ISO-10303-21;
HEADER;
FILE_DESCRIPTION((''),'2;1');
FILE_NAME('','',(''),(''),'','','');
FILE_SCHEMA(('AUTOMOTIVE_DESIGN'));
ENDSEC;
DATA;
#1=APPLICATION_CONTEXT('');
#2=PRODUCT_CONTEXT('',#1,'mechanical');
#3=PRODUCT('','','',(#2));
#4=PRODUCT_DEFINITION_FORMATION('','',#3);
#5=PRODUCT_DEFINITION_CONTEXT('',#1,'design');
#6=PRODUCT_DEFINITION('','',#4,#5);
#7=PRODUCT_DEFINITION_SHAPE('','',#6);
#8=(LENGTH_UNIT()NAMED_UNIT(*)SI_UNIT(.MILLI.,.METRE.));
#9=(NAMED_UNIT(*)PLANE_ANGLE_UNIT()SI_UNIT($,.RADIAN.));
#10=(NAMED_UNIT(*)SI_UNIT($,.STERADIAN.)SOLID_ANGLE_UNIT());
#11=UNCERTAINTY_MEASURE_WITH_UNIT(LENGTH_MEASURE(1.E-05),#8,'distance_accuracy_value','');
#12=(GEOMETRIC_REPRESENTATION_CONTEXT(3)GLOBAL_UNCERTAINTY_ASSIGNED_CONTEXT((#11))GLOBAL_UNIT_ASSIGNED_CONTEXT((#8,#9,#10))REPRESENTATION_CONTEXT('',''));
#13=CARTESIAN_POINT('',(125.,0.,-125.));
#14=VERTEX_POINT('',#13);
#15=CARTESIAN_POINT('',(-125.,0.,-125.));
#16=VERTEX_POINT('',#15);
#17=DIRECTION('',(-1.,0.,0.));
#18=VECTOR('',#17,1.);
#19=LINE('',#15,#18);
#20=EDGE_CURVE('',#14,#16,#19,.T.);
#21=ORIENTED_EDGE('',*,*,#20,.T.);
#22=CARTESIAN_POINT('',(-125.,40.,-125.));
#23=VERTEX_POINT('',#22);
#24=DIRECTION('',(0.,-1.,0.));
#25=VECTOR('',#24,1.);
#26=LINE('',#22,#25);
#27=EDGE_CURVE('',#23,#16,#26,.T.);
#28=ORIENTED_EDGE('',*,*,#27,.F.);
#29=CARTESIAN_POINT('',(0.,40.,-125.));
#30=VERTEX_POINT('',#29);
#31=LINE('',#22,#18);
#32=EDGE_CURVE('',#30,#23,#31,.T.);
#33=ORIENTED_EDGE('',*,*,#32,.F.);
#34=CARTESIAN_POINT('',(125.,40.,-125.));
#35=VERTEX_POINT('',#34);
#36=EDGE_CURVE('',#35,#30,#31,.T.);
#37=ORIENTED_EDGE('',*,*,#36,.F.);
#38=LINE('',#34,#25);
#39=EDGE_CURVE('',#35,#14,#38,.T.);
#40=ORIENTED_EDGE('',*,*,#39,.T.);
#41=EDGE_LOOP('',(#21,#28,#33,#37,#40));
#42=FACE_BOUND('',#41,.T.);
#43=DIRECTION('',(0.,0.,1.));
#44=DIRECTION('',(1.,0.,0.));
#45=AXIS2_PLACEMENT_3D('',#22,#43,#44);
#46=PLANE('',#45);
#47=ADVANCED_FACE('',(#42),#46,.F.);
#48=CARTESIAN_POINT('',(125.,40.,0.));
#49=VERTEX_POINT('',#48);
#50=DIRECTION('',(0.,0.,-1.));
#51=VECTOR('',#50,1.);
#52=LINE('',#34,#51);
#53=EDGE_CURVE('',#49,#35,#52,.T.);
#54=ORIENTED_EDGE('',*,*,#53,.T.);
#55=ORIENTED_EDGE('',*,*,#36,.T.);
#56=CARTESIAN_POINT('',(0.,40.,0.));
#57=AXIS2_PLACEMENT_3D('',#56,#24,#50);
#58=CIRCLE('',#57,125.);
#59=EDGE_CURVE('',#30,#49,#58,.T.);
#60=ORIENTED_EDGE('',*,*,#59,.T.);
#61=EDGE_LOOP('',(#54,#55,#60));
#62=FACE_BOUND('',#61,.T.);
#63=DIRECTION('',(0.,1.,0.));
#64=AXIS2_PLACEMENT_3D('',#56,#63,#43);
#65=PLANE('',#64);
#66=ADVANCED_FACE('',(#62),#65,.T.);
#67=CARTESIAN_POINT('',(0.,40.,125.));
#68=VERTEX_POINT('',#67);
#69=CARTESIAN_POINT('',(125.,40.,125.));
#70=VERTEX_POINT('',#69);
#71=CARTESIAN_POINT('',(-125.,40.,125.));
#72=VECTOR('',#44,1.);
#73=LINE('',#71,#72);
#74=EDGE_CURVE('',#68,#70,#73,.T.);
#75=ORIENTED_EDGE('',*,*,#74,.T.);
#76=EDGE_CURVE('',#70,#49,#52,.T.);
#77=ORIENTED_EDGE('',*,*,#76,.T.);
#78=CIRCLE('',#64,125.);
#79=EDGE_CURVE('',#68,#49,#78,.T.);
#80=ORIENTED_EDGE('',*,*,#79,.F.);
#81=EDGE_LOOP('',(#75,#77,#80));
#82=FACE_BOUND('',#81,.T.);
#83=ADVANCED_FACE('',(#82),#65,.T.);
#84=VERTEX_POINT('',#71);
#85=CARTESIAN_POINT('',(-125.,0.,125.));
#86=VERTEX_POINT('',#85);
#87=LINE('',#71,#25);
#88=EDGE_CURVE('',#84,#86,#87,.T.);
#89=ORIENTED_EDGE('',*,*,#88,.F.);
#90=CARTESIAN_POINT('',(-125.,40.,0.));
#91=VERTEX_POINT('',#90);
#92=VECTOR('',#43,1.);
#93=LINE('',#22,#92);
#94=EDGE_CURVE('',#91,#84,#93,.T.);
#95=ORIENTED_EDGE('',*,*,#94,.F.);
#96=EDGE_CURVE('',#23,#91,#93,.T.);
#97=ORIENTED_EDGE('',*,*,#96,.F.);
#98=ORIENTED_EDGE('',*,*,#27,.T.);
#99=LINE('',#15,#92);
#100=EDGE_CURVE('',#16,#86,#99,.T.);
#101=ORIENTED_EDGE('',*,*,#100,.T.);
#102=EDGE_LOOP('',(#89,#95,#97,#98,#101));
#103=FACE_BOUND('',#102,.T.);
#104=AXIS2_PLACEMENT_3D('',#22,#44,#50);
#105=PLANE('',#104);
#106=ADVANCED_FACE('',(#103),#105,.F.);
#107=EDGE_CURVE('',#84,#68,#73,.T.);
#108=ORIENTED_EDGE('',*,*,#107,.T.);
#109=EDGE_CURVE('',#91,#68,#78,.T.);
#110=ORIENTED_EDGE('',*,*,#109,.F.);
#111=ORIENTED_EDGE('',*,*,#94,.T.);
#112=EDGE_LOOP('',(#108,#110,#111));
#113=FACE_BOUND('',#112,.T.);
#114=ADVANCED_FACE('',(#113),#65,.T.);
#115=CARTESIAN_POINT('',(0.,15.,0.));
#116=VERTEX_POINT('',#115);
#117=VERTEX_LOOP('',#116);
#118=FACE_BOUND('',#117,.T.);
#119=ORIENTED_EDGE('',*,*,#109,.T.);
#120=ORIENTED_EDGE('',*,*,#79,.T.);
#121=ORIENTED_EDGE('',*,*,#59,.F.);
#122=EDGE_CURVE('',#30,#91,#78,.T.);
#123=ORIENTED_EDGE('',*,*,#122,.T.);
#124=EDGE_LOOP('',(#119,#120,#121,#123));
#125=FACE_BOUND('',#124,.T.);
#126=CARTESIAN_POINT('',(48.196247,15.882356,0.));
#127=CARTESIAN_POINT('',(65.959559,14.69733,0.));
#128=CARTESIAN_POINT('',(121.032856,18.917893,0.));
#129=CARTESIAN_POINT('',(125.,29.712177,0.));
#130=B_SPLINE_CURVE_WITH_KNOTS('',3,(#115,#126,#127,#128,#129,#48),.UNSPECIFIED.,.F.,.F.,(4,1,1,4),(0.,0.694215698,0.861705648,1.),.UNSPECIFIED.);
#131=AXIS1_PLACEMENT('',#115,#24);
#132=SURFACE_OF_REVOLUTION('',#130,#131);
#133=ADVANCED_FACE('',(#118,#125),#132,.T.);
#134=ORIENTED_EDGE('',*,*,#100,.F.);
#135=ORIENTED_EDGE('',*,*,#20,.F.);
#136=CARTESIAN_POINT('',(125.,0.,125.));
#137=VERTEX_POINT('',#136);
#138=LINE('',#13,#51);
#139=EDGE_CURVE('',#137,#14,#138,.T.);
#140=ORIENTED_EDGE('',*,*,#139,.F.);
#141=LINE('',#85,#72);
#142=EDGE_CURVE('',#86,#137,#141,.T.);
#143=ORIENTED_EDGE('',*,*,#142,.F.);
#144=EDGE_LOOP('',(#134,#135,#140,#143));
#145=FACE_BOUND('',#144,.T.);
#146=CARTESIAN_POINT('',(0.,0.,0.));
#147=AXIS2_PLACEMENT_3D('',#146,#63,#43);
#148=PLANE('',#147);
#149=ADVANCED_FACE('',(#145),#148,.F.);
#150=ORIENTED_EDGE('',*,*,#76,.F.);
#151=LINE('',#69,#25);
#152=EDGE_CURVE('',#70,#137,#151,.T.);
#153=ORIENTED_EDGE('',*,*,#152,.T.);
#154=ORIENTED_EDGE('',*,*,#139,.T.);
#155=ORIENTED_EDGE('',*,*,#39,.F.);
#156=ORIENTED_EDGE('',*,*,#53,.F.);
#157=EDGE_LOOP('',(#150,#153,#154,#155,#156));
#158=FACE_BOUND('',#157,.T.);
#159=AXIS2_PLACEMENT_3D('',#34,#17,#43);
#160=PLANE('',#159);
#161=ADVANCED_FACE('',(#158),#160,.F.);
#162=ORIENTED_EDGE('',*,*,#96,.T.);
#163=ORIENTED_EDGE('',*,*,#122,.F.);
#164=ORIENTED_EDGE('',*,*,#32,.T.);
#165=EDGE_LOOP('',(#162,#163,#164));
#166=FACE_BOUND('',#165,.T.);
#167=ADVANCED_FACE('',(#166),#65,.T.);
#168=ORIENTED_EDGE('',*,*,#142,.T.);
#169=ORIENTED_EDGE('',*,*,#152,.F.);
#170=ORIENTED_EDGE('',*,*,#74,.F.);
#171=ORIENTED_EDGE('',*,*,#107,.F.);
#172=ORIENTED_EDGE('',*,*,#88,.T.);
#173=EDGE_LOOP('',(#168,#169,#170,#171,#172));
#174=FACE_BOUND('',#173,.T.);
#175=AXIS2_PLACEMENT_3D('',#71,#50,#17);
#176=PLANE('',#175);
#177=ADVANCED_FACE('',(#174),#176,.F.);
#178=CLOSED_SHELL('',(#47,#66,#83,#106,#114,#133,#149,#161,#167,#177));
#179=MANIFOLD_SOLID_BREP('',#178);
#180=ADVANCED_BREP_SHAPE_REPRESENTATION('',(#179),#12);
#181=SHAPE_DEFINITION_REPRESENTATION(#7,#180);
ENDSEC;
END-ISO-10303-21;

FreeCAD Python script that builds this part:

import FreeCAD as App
import Part
import Sketcher


def add_polygon(sketch, points):
    """Adds a closed chain of lines whose ends are joined by coincident constraints."""
    first, n = sketch.GeometryCount, len(points)
    for a, b in zip(points, points[1:] + points[:1]):
        sketch.addGeometry(Part.LineSegment(App.Vector(*a, 0), App.Vector(*b, 0)), False)
    for i in range(n):
        sketch.addConstraint(Sketcher.Constraint("Coincident", first + i, 2, first + (i + 1) % n, 1))

doc = App.newDocument("Part")
params = doc.addObject("Spreadsheet::Sheet", "Params")
for row, (alias, value) in enumerate([
    ("sketch1_width", "250 mm"),
    ("pad1_length", "40 mm"),
    ("groove_angle", "360 deg"),
], start=1):
    params.set(f"A{row}", alias)
    params.set(f"B{row}", "=" + value)
    params.setAlias(f"B{row}", alias)

body = doc.addObject("PartDesign::Body", "Body")

sketch1 = body.newObject("Sketcher::SketchObject", "Sketch")
sketch1.AttachmentSupport = (doc.getObject("XZ_Plane"), [""])
sketch1.MapMode = "FlatFace"
add_polygon(sketch1, [(-125, -125), (-125, 125), (125, 125), (125, -125)])
sketch1.addConstraint([
    Sketcher.Constraint("Vertical", 0),
    Sketcher.Constraint("Horizontal", 1),
    Sketcher.Constraint("Vertical", 2),
    Sketcher.Constraint("Horizontal", 3),
    Sketcher.Constraint("Symmetric", 0, 2, 2, 2, -1, 1),
    Sketcher.Constraint("Equal", 3, 0),
    Sketcher.Constraint("DistanceX", 1, 1, 1, 2, 250.0),
])
sketch1.setExpression("Constraints[10]", "Params.sketch1_width")
pad1 = body.newObject("PartDesign::Pad", "Pad")
pad1.Profile = sketch1
pad1.setExpression("Length", "Params.pad1_length")
pad1.Reversed = True

sketch2 = body.newObject("Sketcher::SketchObject", "Sketch001")
sketch2.AttachmentSupport = (doc.getObject("XY_Plane"), [""])
sketch2.MapMode = "FlatFace"
sketch2.addGeometry([
    Part.LineSegment(App.Vector(0, 63.116182, 0), App.Vector(0, 15, 0)),
    Part.BSplineCurve([App.Vector(0, 15, 0), App.Vector(48.196247, 15.882356, 0), App.Vector(65.959559, 14.69733, 0), App.Vector(121.032856, 18.917893, 0), App.Vector(125, 29.712177, 0), App.Vector(125, 40, 0)], [4, 1, 1, 4], [0, 0.694215698, 0.861705648, 1], False, 3, [1, 1, 1, 1, 1, 1], False),
    Part.LineSegment(App.Vector(125, 40, 0), App.Vector(0, 63.116182, 0)),
], False)
sketch2.addConstraint([
    Sketcher.Constraint("Block", 1),
    Sketcher.Constraint("Coincident", 0, 2, 1, 1),
    Sketcher.Constraint("Coincident", 1, 2, 2, 1),
    Sketcher.Constraint("Coincident", 2, 2, 0, 1),
    Sketcher.Constraint("Vertical", 0),
    Sketcher.Constraint("DistanceY", 0, 2, 0, 1, 48.116182),
])
groove = body.newObject("PartDesign::Groove", "Groove")
groove.Profile = sketch2
groove.ReferenceAxis = (sketch2, ["V_Axis"])
groove.setExpression("Angle", "Params.groove_angle")

doc.recompute()
